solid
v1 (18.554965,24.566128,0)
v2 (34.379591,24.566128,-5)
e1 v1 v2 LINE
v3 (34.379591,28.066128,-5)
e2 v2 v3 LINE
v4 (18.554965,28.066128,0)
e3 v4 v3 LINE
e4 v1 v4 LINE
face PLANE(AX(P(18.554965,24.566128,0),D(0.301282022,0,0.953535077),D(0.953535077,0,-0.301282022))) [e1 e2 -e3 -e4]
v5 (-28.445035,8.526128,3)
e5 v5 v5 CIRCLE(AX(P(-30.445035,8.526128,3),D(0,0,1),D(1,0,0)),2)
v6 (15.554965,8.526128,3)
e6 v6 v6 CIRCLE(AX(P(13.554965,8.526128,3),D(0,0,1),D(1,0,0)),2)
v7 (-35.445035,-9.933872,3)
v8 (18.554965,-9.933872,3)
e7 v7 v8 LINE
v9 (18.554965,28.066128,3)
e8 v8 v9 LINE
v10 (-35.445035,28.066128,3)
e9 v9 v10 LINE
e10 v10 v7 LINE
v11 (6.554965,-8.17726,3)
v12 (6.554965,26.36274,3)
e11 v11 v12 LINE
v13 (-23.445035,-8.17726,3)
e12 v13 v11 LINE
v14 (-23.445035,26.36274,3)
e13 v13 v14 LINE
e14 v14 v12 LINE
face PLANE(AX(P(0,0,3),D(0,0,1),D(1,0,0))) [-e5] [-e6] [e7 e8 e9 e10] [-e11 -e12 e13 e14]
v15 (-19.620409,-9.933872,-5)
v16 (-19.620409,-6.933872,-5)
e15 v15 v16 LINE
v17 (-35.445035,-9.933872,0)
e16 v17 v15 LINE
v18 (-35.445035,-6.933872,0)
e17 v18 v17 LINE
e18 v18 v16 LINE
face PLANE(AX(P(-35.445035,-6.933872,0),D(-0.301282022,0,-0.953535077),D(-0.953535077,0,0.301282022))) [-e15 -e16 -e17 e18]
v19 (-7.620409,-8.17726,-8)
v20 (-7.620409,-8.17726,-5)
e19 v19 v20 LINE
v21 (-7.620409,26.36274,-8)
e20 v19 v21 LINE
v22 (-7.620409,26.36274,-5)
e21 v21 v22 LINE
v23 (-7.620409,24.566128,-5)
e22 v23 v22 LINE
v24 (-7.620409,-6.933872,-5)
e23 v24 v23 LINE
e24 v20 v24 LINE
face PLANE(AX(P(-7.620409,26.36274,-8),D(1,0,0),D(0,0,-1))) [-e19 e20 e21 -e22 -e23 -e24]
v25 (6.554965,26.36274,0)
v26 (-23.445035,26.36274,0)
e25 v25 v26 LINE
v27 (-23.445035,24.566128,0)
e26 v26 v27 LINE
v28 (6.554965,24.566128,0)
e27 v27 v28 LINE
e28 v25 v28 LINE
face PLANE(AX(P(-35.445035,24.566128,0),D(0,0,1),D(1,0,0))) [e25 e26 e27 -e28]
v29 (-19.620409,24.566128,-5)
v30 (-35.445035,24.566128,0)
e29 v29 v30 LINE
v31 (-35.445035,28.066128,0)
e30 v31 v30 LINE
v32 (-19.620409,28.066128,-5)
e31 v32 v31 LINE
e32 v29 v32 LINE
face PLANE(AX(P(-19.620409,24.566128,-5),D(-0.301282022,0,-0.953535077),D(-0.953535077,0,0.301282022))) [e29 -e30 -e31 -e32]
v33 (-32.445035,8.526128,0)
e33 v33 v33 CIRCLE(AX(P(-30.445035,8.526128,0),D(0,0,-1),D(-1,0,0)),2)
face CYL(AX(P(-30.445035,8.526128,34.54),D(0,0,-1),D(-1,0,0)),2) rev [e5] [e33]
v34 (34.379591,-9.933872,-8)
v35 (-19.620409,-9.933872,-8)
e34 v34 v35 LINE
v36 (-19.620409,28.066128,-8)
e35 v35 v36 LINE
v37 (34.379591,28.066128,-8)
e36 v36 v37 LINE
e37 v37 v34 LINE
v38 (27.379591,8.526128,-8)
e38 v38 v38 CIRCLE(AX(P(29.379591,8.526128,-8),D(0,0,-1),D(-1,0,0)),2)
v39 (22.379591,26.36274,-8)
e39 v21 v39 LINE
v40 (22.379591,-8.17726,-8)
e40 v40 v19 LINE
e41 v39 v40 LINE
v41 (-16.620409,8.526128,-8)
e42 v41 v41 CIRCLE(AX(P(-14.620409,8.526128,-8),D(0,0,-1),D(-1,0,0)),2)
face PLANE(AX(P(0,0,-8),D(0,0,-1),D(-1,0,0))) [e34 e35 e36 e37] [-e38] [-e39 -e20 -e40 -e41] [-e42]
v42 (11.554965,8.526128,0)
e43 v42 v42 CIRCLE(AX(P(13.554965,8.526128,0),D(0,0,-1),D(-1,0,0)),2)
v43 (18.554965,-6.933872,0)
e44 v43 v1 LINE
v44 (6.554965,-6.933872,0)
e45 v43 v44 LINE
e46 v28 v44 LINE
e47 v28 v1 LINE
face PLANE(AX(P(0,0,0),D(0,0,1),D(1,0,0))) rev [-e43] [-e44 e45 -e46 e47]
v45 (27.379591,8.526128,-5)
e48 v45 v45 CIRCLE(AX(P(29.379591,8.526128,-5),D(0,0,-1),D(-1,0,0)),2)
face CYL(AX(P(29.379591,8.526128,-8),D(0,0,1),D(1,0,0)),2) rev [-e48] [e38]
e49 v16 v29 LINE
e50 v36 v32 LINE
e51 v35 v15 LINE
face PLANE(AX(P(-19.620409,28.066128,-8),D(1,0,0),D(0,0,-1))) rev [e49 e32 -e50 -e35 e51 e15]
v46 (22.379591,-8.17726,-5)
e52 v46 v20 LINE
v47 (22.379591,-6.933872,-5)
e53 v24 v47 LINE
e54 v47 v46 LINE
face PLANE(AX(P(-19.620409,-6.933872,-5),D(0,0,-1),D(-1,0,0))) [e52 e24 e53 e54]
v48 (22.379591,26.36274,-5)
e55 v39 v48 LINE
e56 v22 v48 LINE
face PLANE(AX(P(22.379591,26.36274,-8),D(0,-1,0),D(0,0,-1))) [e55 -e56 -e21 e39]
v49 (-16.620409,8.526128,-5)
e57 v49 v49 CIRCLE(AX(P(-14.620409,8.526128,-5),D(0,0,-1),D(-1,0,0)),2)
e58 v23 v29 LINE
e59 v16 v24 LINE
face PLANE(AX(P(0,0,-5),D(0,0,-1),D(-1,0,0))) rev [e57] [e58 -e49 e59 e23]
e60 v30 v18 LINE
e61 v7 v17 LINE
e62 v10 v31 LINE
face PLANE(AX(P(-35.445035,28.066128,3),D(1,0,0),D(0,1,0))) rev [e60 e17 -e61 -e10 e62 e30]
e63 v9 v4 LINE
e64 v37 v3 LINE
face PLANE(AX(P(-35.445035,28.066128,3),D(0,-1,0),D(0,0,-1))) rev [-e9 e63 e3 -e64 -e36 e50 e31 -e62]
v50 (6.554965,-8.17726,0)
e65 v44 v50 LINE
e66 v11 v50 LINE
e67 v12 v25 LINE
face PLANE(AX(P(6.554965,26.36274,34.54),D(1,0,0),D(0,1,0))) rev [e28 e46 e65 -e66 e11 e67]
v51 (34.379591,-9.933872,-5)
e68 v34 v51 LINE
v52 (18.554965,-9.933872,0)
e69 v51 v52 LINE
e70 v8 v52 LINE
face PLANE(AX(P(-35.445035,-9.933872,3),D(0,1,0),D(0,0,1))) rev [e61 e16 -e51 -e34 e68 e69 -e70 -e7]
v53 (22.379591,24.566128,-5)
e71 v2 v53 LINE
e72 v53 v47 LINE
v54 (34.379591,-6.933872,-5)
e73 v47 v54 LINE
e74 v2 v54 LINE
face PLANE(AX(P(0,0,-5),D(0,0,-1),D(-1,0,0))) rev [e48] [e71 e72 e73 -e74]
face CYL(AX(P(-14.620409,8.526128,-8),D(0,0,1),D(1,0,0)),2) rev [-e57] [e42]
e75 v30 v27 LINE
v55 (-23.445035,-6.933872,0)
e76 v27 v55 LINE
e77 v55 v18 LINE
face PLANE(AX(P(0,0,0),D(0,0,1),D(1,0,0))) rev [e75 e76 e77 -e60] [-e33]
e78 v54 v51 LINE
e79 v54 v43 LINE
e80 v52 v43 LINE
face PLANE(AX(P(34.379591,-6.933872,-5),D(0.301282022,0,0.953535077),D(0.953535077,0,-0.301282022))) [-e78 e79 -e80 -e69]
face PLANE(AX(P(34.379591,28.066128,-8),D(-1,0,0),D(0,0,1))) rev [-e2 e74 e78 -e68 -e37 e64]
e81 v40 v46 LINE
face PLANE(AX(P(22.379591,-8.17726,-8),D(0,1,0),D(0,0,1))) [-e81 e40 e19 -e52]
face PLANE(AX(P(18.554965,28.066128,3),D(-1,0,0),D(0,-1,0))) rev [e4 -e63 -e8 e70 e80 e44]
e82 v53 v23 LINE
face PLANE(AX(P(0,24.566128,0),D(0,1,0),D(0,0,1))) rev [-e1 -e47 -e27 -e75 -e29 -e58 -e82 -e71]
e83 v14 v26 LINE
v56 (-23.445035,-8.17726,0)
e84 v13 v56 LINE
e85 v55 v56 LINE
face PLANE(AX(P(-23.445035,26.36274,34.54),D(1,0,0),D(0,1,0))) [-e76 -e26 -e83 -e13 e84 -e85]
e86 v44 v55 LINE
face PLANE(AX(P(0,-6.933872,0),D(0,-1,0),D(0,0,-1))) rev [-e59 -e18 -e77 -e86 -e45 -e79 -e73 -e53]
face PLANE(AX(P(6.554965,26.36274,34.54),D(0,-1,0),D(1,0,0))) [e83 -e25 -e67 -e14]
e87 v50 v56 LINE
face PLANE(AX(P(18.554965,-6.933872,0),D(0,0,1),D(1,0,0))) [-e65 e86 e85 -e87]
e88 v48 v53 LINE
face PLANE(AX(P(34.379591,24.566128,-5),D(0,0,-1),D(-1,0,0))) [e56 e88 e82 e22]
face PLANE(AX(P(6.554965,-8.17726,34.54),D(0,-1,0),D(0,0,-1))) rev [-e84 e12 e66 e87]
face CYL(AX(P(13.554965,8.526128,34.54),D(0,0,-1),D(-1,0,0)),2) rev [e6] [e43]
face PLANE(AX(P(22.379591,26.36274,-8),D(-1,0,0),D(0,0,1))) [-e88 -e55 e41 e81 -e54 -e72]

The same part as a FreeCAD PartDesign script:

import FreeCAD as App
import Part
import Sketcher
Q = App.Units.Quantity

doc = App.newDocument("Part")
params = doc.addObject("Spreadsheet::Sheet", "Params")
for row, (alias, value) in enumerate([
    ("sketch1_width", "54 mm"),
    ("sketch1_height", "38 mm"),
    ("pad1_length", "3 mm"),
    ("sketch2_diameter", "4 mm"),
    ("sketch2_width", "30 mm"),
    ("sketch2_height", "34.54 mm"),
    ("pocket1_length", "34.54 mm"),
    ("sketch3_diameter", "4 mm"),
    ("sketch3_width", "54 mm"),
    ("sketch3_width2", "30 mm"),
    ("sketch3_height", "38 mm"),
    ("sketch3_height2", "34.54 mm"),
    ("pad2_length", "3 mm"),
    ("sketch4_width", "54 mm"),
    ("pad3_length", "3.5 mm"),
    ("sketch5_width", "54 mm"),
    ("pad4_length", "3 mm"),
], start=1):
    params.set(f"A{row}", alias)
    params.set(f"B{row}", "=" + value)
    params.setAlias(f"B{row}", alias)

body = doc.addObject("PartDesign::Body", "Body")

# Sketch on XY plane
sketch1 = doc.addObject("Sketcher::SketchObject", "Sketch")
body.addObject(sketch1)
sketch1.AttachmentSupport = (doc.XY_Plane, [""])
sketch1.MapMode = "FlatFace"
sketch1.addGeometry(Part.LineSegment(App.Vector(-35, 28, 0), App.Vector(-35, -10, 0)), False)
sketch1.addGeometry(Part.LineSegment(App.Vector(-35, -10, 0), App.Vector(19, -10, 0)), False)
sketch1.addGeometry(Part.LineSegment(App.Vector(19, -10, 0), App.Vector(19, 28, 0)), False)
sketch1.addGeometry(Part.LineSegment(App.Vector(19, 28, 0), App.Vector(-35, 28, 0)), False)
sketch1.addConstraint(Sketcher.Constraint("Coincident", 0, 2, 1, 1))
sketch1.addConstraint(Sketcher.Constraint("Coincident", 1, 2, 2, 1))
sketch1.addConstraint(Sketcher.Constraint("Coincident", 2, 2, 3, 1))
sketch1.addConstraint(Sketcher.Constraint("Coincident", 3, 2, 0, 1))
sketch1.addConstraint(Sketcher.Constraint("Vertical", 0))
sketch1.addConstraint(Sketcher.Constraint("Horizontal", 1))
sketch1.addConstraint(Sketcher.Constraint("Vertical", 2))
sketch1.addConstraint(Sketcher.Constraint("Horizontal", 3))
sketch1.addConstraint(Sketcher.Constraint("DistanceX", 1, 1, 1, 2, Q("54 mm")))
sketch1.addConstraint(Sketcher.Constraint("DistanceY", 0, 2, 0, 1, Q("38 mm")))
sketch1.addConstraint(Sketcher.Constraint("DistanceY", 0, 2, -1, 1, Q("9.933872 mm")))
sketch1.addConstraint(Sketcher.Constraint("DistanceX", 0, 2, -1, 1, Q("35.445035 mm")))
sketch1.setExpression("Constraints[8]", "Params.sketch1_width")
sketch1.setExpression("Constraints[9]", "Params.sketch1_height")
pad1 = doc.addObject("PartDesign::Pad", "Pad")
body.addObject(pad1)
pad1.Profile = sketch1
pad1.setExpression("Length", "Params.pad1_length")

# Sketch on XY plane
sketch2 = doc.addObject("Sketcher::SketchObject", "Sketch001")
body.addObject(sketch2)
sketch2.AttachmentSupport = (doc.XY_Plane, [""])
sketch2.MapMode = "FlatFace"
sketch2.addGeometry(Part.Circle(App.Vector(13.6, 8.5, 0), App.Vector(0, 0, 1), 2), False)
sketch2.addGeometry(Part.Circle(App.Vector(-30.4, 8.5, 0), App.Vector(0, 0, 1), 2), False)
sketch2.addGeometry(Part.LineSegment(App.Vector(6.6, 26.4, 0), App.Vector(6.6, -8.2, 0)), False)
sketch2.addGeometry(Part.LineSegment(App.Vector(6.6, -8.2, 0), App.Vector(-23.4, -8.2, 0)), False)
sketch2.addGeometry(Part.LineSegment(App.Vector(-23.4, -8.2, 0), App.Vector(-23.4, 26.4, 0)), False)
sketch2.addGeometry(Part.LineSegment(App.Vector(-23.4, 26.4, 0), App.Vector(6.6, 26.4, 0)), False)
sketch2.addConstraint(Sketcher.Constraint("Coincident", 2, 2, 3, 1))
sketch2.addConstraint(Sketcher.Constraint("Coincident", 3, 2, 4, 1))
sketch2.addConstraint(Sketcher.Constraint("Coincident", 4, 2, 5, 1))
sketch2.addConstraint(Sketcher.Constraint("Coincident", 5, 2, 2, 1))
sketch2.addConstraint(Sketcher.Constraint("Vertical", 2))
sketch2.addConstraint(Sketcher.Constraint("Horizontal", 3))
sketch2.addConstraint(Sketcher.Constraint("Vertical", 4))
sketch2.addConstraint(Sketcher.Constraint("Horizontal", 5))
sketch2.addConstraint(Sketcher.Constraint("Equal", 0, 1))
sketch2.addConstraint(Sketcher.Constraint("Horizontal", 0, 3, 1, 3))
sketch2.addConstraint(Sketcher.Constraint("Diameter", 0, Q("4 mm")))
sketch2.addConstraint(Sketcher.Constraint("DistanceX", 3, 2, 3, 1, Q("30 mm")))
sketch2.addConstraint(Sketcher.Constraint("DistanceX", 1, 3, 0, 3, Q("44 mm")))
sketch2.addConstraint(Sketcher.Constraint("DistanceX", 2, 2, 0, 3, Q("7 mm")))
sketch2.addConstraint(Sketcher.Constraint("DistanceY", 2, 2, 2, 1, Q("34.54 mm")))
sketch2.addConstraint(Sketcher.Constraint("DistanceY", -1, 1, 0, 3, Q("8.526128 mm")))
sketch2.addConstraint(Sketcher.Constraint("DistanceY", 2, 2, -1, 1, Q("8.17726 mm")))
sketch2.addConstraint(Sketcher.Constraint("DistanceX", -1, 1, 0, 3, Q("13.554965 mm")))
sketch2.setExpression("Constraints[10]", "Params.sketch2_diameter")
sketch2.setExpression("Constraints[11]", "Params.sketch2_width")
sketch2.setExpression("Constraints[14]", "Params.sketch2_height")
pocket1 = doc.addObject("PartDesign::Pocket", "Pocket")
body.addObject(pocket1)
pocket1.Profile = sketch2
pocket1.setExpression("Length", "Params.pocket1_length")
pocket1.Reversed = True
body2 = doc.addObject("PartDesign::Body", "Body001")

# Sketch on XY plane
sketch3 = doc.addObject("Sketcher::SketchObject", "Sketch002")
body2.addObject(sketch3)
sketch3.AttachmentSupport = (doc.getObject("XY_Plane001"), [""])
sketch3.MapMode = "FlatFace"
sketch3.AttachmentOffset = App.Placement(App.Vector(0, 0, -5), App.Rotation())
sketch3.addGeometry(Part.LineSegment(App.Vector(34.4, 28.1, 0), App.Vector(34.4, -9.9, 0)), False)
sketch3.addGeometry(Part.LineSegment(App.Vector(34.4, -9.9, 0), App.Vector(-19.6, -9.9, 0)), False)
sketch3.addGeometry(Part.LineSegment(App.Vector(-19.6, -9.9, 0), App.Vector(-19.6, 28.1, 0)), False)
sketch3.addGeometry(Part.LineSegment(App.Vector(-19.6, 28.1, 0), App.Vector(34.4, 28.1, 0)), False)
sketch3.addGeometry(Part.Circle(App.Vector(29.4, 8.5, 0), App.Vector(0, 0, 1), 2), False)
sketch3.addGeometry(Part.Circle(App.Vector(-14.6, 8.5, 0), App.Vector(0, 0, 1), 2), False)
sketch3.addGeometry(Part.LineSegment(App.Vector(-7.6, -8.2, 0), App.Vector(22.4, -8.2, 0)), False)
sketch3.addGeometry(Part.LineSegment(App.Vector(22.4, -8.2, 0), App.Vector(22.4, 26.4, 0)), False)
sketch3.addGeometry(Part.LineSegment(App.Vector(22.4, 26.4, 0), App.Vector(-7.6, 26.4, 0)), False)
sketch3.addGeometry(Part.LineSegment(App.Vector(-7.6, 26.4, 0), App.Vector(-7.6, -8.2, 0)), False)
sketch3.addConstraint(Sketcher.Constraint("Coincident", 0, 2, 1, 1))
sketch3.addConstraint(Sketcher.Constraint("Coincident", 1, 2, 2, 1))
sketch3.addConstraint(Sketcher.Constraint("Coincident", 2, 2, 3, 1))
sketch3.addConstraint(Sketcher.Constraint("Coincident", 3, 2, 0, 1))
sketch3.addConstraint(Sketcher.Constraint("Coincident", 6, 2, 7, 1))
sketch3.addConstraint(Sketcher.Constraint("Coincident", 7, 2, 8, 1))
sketch3.addConstraint(Sketcher.Constraint("Coincident", 8, 2, 9, 1))
sketch3.addConstraint(Sketcher.Constraint("Coincident", 9, 2, 6, 1))
sketch3.addConstraint(Sketcher.Constraint("Vertical", 0))
sketch3.addConstraint(Sketcher.Constraint("Horizontal", 1))
sketch3.addConstraint(Sketcher.Constraint("Vertical", 2))
sketch3.addConstraint(Sketcher.Constraint("Horizontal", 3))
sketch3.addConstraint(Sketcher.Constraint("Horizontal", 6))
sketch3.addConstraint(Sketcher.Constraint("Vertical", 7))
sketch3.addConstraint(Sketcher.Constraint("Horizontal", 8))
sketch3.addConstraint(Sketcher.Constraint("Vertical", 9))
sketch3.addConstraint(Sketcher.Constraint("Equal", 4, 5))
sketch3.addConstraint(Sketcher.Constraint("Horizontal", 4, 3, 5, 3))
sketch3.addConstraint(Sketcher.Constraint("Diameter", 4, Q("4 mm")))
sketch3.addConstraint(Sketcher.Constraint("DistanceX", 1, 2, 1, 1, Q("54 mm")))
sketch3.addConstraint(Sketcher.Constraint("DistanceX", 6, 1, 6, 2, Q("30 mm")))
sketch3.addConstraint(Sketcher.Constraint("DistanceY", 0, 2, 0, 1, Q("38 mm")))
sketch3.addConstraint(Sketcher.Constraint("DistanceX", 5, 3, 4, 3, Q("44 mm")))
sketch3.addConstraint(Sketcher.Constraint("DistanceX", 4, 3, 0, 2, Q("5 mm")))
sketch3.addConstraint(Sketcher.Constraint("DistanceX", 6, 2, 0, 2, Q("12 mm")))
sketch3.addConstraint(Sketcher.Constraint("DistanceY", 7, 1, 7, 2, Q("34.54 mm")))
sketch3.addConstraint(Sketcher.Constraint("DistanceY", 0, 2, 4, 3, Q("18.46 mm")))
sketch3.addConstraint(Sketcher.Constraint("DistanceX", -1, 1, 4, 3, Q("29.379591 mm")))
sketch3.addConstraint(Sketcher.Constraint("DistanceY", -1, 1, 4, 3, Q("8.526128 mm")))
sketch3.addConstraint(Sketcher.Constraint("DistanceY", 6, 2, -1, 1, Q("8.17726 mm")))
sketch3.setExpression("Constraints[18]", "Params.sketch3_diameter")
sketch3.setExpression("Constraints[19]", "Params.sketch3_width")
sketch3.setExpression("Constraints[20]", "Params.sketch3_width2")
sketch3.setExpression("Constraints[21]", "Params.sketch3_height")
sketch3.setExpression("Constraints[25]", "Params.sketch3_height2")
pad2 = doc.addObject("PartDesign::Pad", "Pad001")
body2.addObject(pad2)
pad2.Profile = sketch3
pad2.setExpression("Length", "Params.pad2_length")
pad2.Reversed = True
body.AllowCompound = True
doc.recompute()

boolean = doc.addObject("PartDesign::Boolean", "Boolean")
body.addObject(boolean)
boolean.Type = "Fuse"
boolean.addObjects([body2])

# Sketch on XZ plane
sketch4 = doc.addObject("Sketcher::SketchObject", "Sketch003")
body.addObject(sketch4)
sketch4.AttachmentSupport = (doc.XZ_Plane, [""])
sketch4.MapMode = "FlatFace"
sketch4.AttachmentOffset = App.Placement(App.Vector(0, 0, -28.066128), App.Rotation())
sketch4.addGeometry(Part.LineSegment(App.Vector(-20, -5, 0), App.Vector(-35, 0, 0)), False)
sketch4.addGeometry(Part.LineSegment(App.Vector(-35, 0, 0), App.Vector(19, 0, 0)), False)
sketch4.addGeometry(Part.LineSegment(App.Vector(19, 0, 0), App.Vector(34, -5, 0)), False)
sketch4.addGeometry(Part.LineSegment(App.Vector(34, -5, 0), App.Vector(-20, -5, 0)), False)
sketch4.addConstraint(Sketcher.Constraint("Coincident", 0, 2, 1, 1))
sketch4.addConstraint(Sketcher.Constraint("Coincident", 1, 2, 2, 1))
sketch4.addConstraint(Sketcher.Constraint("Coincident", 2, 2, 3, 1))
sketch4.addConstraint(Sketcher.Constraint("Coincident", 3, 2, 0, 1))
sketch4.addConstraint(Sketcher.Constraint("Horizontal", 1))
sketch4.addConstraint(Sketcher.Constraint("Horizontal", 3))
sketch4.addConstraint(Sketcher.Constraint("PointOnObject", 0, 2, -1))
sketch4.addConstraint(Sketcher.Constraint("Parallel", 0, 2))
sketch4.addConstraint(Sketcher.Constraint("DistanceX", 1, 1, 1, 2, Q("54 mm")))
sketch4.addConstraint(Sketcher.Constraint("DistanceY", 2, 2, -1, 1, Q("5 mm")))
sketch4.addConstraint(Sketcher.Constraint("DistanceX", -1, 1, 2, 2, Q("34.379591 mm")))
sketch4.addConstraint(Sketcher.Constraint("Distance", 0, Q("16.595746 mm")))
sketch4.setExpression("Constraints[8]", "Params.sketch4_width")
pad3 = doc.addObject("PartDesign::Pad", "Pad002")
body.addObject(pad3)
pad3.Profile = sketch4
pad3.setExpression("Length", "Params.pad3_length")

# Sketch on XZ plane
sketch5 = doc.addObject("Sketcher::SketchObject", "Sketch004")
body.addObject(sketch5)
sketch5.AttachmentSupport = (doc.XZ_Plane, [""])
sketch5.MapMode = "FlatFace"
sketch5.AttachmentOffset = App.Placement(App.Vector(0, 0, 9.933872), App.Rotation())
sketch5.addGeometry(Part.LineSegment(App.Vector(-35, 0, 0), App.Vector(-20, -5, 0)), False)
sketch5.addGeometry(Part.LineSegment(App.Vector(-20, -5, 0), App.Vector(34, -5, 0)), False)
sketch5.addGeometry(Part.LineSegment(App.Vector(34, -5, 0), App.Vector(19, 0, 0)), False)
sketch5.addGeometry(Part.LineSegment(App.Vector(19, 0, 0), App.Vector(-35, 0, 0)), False)
sketch5.addConstraint(Sketcher.Constraint("Coincident", 0, 2, 1, 1))
sketch5.addConstraint(Sketcher.Constraint("Coincident", 1, 2, 2, 1))
sketch5.addConstraint(Sketcher.Constraint("Coincident", 2, 2, 3, 1))
sketch5.addConstraint(Sketcher.Constraint("Coincident", 3, 2, 0, 1))
sketch5.addConstraint(Sketcher.Constraint("Horizontal", 1))
sketch5.addConstraint(Sketcher.Constraint("Horizontal", 3))
sketch5.addConstraint(Sketcher.Constraint("PointOnObject", 2, 2, -1))
sketch5.addConstraint(Sketcher.Constraint("Parallel", 0, 2))
sketch5.addConstraint(Sketcher.Constraint("DistanceX", 1, 1, 1, 2, Q("54 mm")))
sketch5.addConstraint(Sketcher.Constraint("DistanceY", 0, 2, -1, 1, Q("5 mm")))
sketch5.addConstraint(Sketcher.Constraint("DistanceX", 0, 2, -1, 1, Q("19.620409 mm")))
sketch5.addConstraint(Sketcher.Constraint("Distance", 0, Q("16.595746 mm")))
sketch5.setExpression("Constraints[8]", "Params.sketch5_width")
pad4 = doc.addObject("PartDesign::Pad", "Pad003")
body.addObject(pad4)
pad4.Profile = sketch5
pad4.setExpression("Length", "Params.pad4_length")
pad4.Reversed = True

doc.recompute()
